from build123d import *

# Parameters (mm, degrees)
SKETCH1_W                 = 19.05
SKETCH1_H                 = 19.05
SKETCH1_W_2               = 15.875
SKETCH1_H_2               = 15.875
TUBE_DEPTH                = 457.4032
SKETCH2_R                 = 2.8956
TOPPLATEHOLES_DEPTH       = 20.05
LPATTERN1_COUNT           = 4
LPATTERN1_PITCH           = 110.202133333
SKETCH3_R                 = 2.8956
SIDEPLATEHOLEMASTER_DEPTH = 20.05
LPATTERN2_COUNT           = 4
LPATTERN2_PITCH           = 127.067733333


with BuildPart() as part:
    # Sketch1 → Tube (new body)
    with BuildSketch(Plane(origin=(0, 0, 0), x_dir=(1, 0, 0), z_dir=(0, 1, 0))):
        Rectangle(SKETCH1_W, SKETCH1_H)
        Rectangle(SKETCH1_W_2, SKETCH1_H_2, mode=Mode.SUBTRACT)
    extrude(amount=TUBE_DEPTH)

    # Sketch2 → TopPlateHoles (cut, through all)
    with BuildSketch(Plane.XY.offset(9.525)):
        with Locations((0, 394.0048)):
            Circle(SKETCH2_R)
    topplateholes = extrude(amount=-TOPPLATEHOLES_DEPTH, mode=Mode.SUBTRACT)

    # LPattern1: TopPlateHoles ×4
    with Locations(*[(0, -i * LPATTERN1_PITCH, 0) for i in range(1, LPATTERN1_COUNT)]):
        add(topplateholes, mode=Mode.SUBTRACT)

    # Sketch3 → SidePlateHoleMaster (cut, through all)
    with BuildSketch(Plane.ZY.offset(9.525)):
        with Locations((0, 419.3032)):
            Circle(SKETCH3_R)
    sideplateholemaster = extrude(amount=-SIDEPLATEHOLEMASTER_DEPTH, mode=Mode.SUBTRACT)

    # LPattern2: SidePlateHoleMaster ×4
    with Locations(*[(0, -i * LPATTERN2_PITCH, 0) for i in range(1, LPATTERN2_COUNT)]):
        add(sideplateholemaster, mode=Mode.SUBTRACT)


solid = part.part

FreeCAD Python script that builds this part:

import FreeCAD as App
import Part
import Sketcher
Q = App.Units.Quantity


def add_polygon(sketch, points):
    """Adds a closed chain of lines whose ends are joined by coincident constraints."""
    first, n = sketch.GeometryCount, len(points)
    for a, b in zip(points, points[1:] + points[:1]):
        sketch.addGeometry(Part.LineSegment(App.Vector(*a, 0), App.Vector(*b, 0)), False)
    for i in range(n):
        sketch.addConstraint(Sketcher.Constraint("Coincident", first + i, 2, first + (i + 1) % n, 1))

doc = App.newDocument("Part")
body = doc.addObject("PartDesign::Body", "Body")

# Sketch on XZ plane
sketch1 = body.newObject("Sketcher::SketchObject", "Sketch")
sketch1.AttachmentSupport = (doc.getObject("XZ_Plane"), [""])
sketch1.MapMode = "FlatFace"
add_polygon(sketch1, [(-10, -10), (-10, 10), (10, 10), (10, -10)])  # lines 0-3
add_polygon(sketch1, [(8, 8), (-8, 8), (-8, -8), (8, -8)])  # lines 4-7
sketch1.addConstraint(Sketcher.Constraint("Vertical", 0))
sketch1.addConstraint(Sketcher.Constraint("Horizontal", 1))
sketch1.addConstraint(Sketcher.Constraint("Vertical", 2))
sketch1.addConstraint(Sketcher.Constraint("Horizontal", 3))
sketch1.addConstraint(Sketcher.Constraint("Horizontal", 4))
sketch1.addConstraint(Sketcher.Constraint("Vertical", 5))
sketch1.addConstraint(Sketcher.Constraint("Horizontal", 6))
sketch1.addConstraint(Sketcher.Constraint("Vertical", 7))
sketch1.addConstraint(Sketcher.Constraint("Symmetric", 0, 2, 2, 2, -1, 1))
sketch1.addConstraint(Sketcher.Constraint("Symmetric", 4, 2, 6, 2, -1, 1))
sketch1.addConstraint(Sketcher.Constraint("Equal", 3, 0))
sketch1.addConstraint(Sketcher.Constraint("Equal", 6, 5))
sketch1.addConstraint(Sketcher.Constraint("DistanceX", 1, 1, 1, 2, Q("0.75 in")))
sketch1.addConstraint(Sketcher.Constraint("DistanceX", 4, 2, 4, 1, Q("0.625 in")))
pad1 = body.newObject("PartDesign::Pad", "Pad")
pad1.Profile = sketch1
pad1.Length = Q("18.008 in")
pad1.Reversed = True

# Sketch on XY plane
sketch2 = body.newObject("Sketcher::SketchObject", "Sketch001")
sketch2.AttachmentSupport = (doc.getObject("XY_Plane"), [""])
sketch2.MapMode = "FlatFace"
sketch2.AttachmentOffset = App.Placement(App.Vector(0, 0, 0.375 * 25.4), App.Rotation())
sketch2.addGeometry(Part.Circle(App.Vector(0, 394, 0), App.Vector(0, 0, 1), 2.9), False)
sketch2.addConstraint(Sketcher.Constraint("PointOnObject", 0, 3, -2))
sketch2.addConstraint(Sketcher.Constraint("Diameter", 0, Q("0.228 in")))
sketch2.addConstraint(Sketcher.Constraint("DistanceY", -1, 1, 0, 3, Q("15.512 in")))
pocket1 = body.newObject("PartDesign::Pocket", "Pocket")
pocket1.Profile = sketch2
pocket1.Type = "ThroughAll"
doc.recompute()

linearpattern = body.newObject("PartDesign::LinearPattern", "LinearPattern")
linearpattern.Originals = [pocket1]
linearpattern.Direction = (doc.getObject("Y_Axis"), [""])
linearpattern.Mode = "offset"
linearpattern.Offset = 110.202133
linearpattern.Occurrences = 4
linearpattern.Reversed = True
body.Tip = linearpattern

# Sketch on YZ plane
sketch3 = body.newObject("Sketcher::SketchObject", "Sketch002")
sketch3.AttachmentSupport = (doc.getObject("YZ_Plane"), [""])
sketch3.MapMode = "FlatFace"
sketch3.AttachmentOffset = App.Placement(App.Vector(0, 0, -0.375 * 25.4), App.Rotation())
sketch3.addGeometry(Part.Circle(App.Vector(419.3, 0, 0), App.Vector(0, 0, 1), 2.9), False)
sketch3.addConstraint(Sketcher.Constraint("PointOnObject", 0, 3, -1))
sketch3.addConstraint(Sketcher.Constraint("Diameter", 0, Q("0.228 in")))
sketch3.addConstraint(Sketcher.Constraint("DistanceX", -1, 1, 0, 3, Q("16.508 in")))
pocket2 = body.newObject("PartDesign::Pocket", "Pocket001")
pocket2.Profile = sketch3
pocket2.Type = "ThroughAll"
pocket2.Reversed = True
doc.recompute()

linearpattern2 = body.newObject("PartDesign::LinearPattern", "LinearPattern001")
linearpattern2.Originals = [pocket2]
linearpattern2.Direction = (doc.getObject("Y_Axis"), [""])
linearpattern2.Mode = "offset"
linearpattern2.Offset = 127.067733
linearpattern2.Occurrences = 4
linearpattern2.Reversed = True
body.Tip = linearpattern2

doc.recompute()
